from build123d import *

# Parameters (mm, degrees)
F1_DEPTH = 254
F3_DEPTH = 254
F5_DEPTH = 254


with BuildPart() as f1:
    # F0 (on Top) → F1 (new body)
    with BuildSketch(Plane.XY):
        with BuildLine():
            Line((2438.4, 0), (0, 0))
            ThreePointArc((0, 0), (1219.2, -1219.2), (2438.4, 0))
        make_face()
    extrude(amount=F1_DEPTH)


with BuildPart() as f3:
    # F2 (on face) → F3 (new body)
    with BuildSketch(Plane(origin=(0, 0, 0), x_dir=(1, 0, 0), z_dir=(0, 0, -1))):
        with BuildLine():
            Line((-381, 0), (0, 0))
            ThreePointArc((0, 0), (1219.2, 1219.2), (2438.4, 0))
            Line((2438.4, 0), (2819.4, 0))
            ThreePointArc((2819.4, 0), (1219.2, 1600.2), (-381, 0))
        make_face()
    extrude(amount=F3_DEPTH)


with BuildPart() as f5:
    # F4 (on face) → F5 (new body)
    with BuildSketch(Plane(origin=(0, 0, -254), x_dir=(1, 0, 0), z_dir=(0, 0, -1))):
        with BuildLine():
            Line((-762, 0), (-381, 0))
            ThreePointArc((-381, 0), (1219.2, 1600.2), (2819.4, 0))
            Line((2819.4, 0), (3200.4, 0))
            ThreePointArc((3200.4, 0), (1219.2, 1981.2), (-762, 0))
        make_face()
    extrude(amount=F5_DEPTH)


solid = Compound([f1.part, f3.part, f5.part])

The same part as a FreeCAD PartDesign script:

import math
import FreeCAD as App
import Part
import Sketcher
from FreeCAD import Vector
Q = App.Units.Quantity

doc = App.newDocument("Part")
body = doc.addObject("PartDesign::Body", "Body")

# Sketch on XY plane
sketch1 = body.newObject("Sketcher::SketchObject", "Sketch")
sketch1.AttachmentSupport = (doc.getObject("XY_Plane"), [""])
sketch1.MapMode = "FlatFace"
sketch1.addGeometry([
    Part.LineSegment(Vector(2438.4, 0, 0), Vector(0, 0, 0)),
    Part.ArcOfCircle(Part.Circle(Vector(1219.2, 0, 0), Vector(0, 0, 1), 1219.2), math.radians(180), math.radians(360)),
], False)
sketch1.addConstraint([
    Sketcher.Constraint("Coincident", 0, 1, 1, 2),
    Sketcher.Constraint("Coincident", 1, 1, 0, 2),
    Sketcher.Constraint("Horizontal", 0),
    Sketcher.Constraint("PointOnObject", 1, 3, -1),
    Sketcher.Constraint("PointOnObject", 0, 1, -1),
    Sketcher.Constraint("Radius", 1, Q("48 in")),
    Sketcher.Constraint("DistanceX", -1, 1, 1, 3, Q("48 in")),
])
pad1 = body.newObject("PartDesign::Pad", "Pad")
pad1.Profile = sketch1
pad1.Length = Q("10 in")
body2 = doc.addObject("PartDesign::Body", "Body001")

# Sketch on XY plane
sketch2 = body2.newObject("Sketcher::SketchObject", "Sketch001")
sketch2.AttachmentSupport = (doc.getObject("XY_Plane001"), [""])
sketch2.MapMode = "FlatFace"
sketch2.addGeometry([
    Part.LineSegment(Vector(-381, 0, 0), Vector(0, 0, 0)),
    Part.ArcOfCircle(Part.Circle(Vector(1219.2, 0, 0), Vector(0, 0, 1), 1219.2), math.radians(180), math.radians(360)),
    Part.LineSegment(Vector(2438.4, 0, 0), Vector(2819.4, 0, 0)),
    Part.ArcOfCircle(Part.Circle(Vector(1219.2, 0, 0), Vector(0, 0, 1), 1600.2), math.radians(180), math.radians(360)),
], False)
sketch2.addConstraint([
    Sketcher.Constraint("Coincident", 0, 2, 1, 1),
    Sketcher.Constraint("Coincident", 1, 2, 2, 1),
    Sketcher.Constraint("Coincident", 2, 2, 3, 2),
    Sketcher.Constraint("Coincident", 3, 1, 0, 1),
    Sketcher.Constraint("Horizontal", 0),
    Sketcher.Constraint("Horizontal", 2),
    Sketcher.Constraint("Coincident", 0, 2, -1, 1),
    Sketcher.Constraint("Coincident", 3, 3, 1, 3),
    Sketcher.Constraint("PointOnObject", 1, 3, -1),
    Sketcher.Constraint("PointOnObject", 2, 2, -1),
    Sketcher.Constraint("Radius", 1, Q("48 in")),
    Sketcher.Constraint("Radius", 3, Q("63 in")),
])
pad2 = body2.newObject("PartDesign::Pad", "Pad001")
pad2.Profile = sketch2
pad2.Length = Q("10 in")
pad2.Reversed = True
body3 = doc.addObject("PartDesign::Body", "Body002")

# Sketch on XY plane
sketch3 = body3.newObject("Sketcher::SketchObject", "Sketch002")
sketch3.AttachmentSupport = (doc.getObject("XY_Plane002"), [""])
sketch3.MapMode = "FlatFace"
sketch3.AttachmentOffset = App.Placement(Vector(0, 0, -10 * 25.4), App.Rotation())
sketch3.addGeometry([
    Part.LineSegment(Vector(-762, 0, 0), Vector(-381, 0, 0)),
    Part.ArcOfCircle(Part.Circle(Vector(1219.2, 0, 0), Vector(0, 0, 1), 1600.2), math.radians(180), math.radians(360)),
    Part.LineSegment(Vector(2819.4, 0, 0), Vector(3200.4, 0, 0)),
    Part.ArcOfCircle(Part.Circle(Vector(1219.2, 0, 0), Vector(0, 0, 1), 1981.2), math.radians(180), math.radians(360)),
], False)
sketch3.addConstraint([
    Sketcher.Constraint("Coincident", 0, 2, 1, 1),
    Sketcher.Constraint("Coincident", 1, 2, 2, 1),
    Sketcher.Constraint("Coincident", 2, 2, 3, 2),
    Sketcher.Constraint("Coincident", 3, 1, 0, 1),
    Sketcher.Constraint("Horizontal", 0),
    Sketcher.Constraint("Horizontal", 2),
    Sketcher.Constraint("Coincident", 3, 3, 1, 3),
    Sketcher.Constraint("PointOnObject", 1, 3, -1),
    Sketcher.Constraint("PointOnObject", 0, 2, -1),
    Sketcher.Constraint("PointOnObject", 2, 2, -1),
    Sketcher.Constraint("Radius", 1, Q("63 in")),
    Sketcher.Constraint("Radius", 3, Q("78 in")),
    Sketcher.Constraint("DistanceX", -1, 1, 1, 3, Q("48 in")),
])
pad3 = body3.newObject("PartDesign::Pad", "Pad002")
pad3.Profile = sketch3
pad3.Length = Q("10 in")
pad3.Reversed = True

doc.recompute()
